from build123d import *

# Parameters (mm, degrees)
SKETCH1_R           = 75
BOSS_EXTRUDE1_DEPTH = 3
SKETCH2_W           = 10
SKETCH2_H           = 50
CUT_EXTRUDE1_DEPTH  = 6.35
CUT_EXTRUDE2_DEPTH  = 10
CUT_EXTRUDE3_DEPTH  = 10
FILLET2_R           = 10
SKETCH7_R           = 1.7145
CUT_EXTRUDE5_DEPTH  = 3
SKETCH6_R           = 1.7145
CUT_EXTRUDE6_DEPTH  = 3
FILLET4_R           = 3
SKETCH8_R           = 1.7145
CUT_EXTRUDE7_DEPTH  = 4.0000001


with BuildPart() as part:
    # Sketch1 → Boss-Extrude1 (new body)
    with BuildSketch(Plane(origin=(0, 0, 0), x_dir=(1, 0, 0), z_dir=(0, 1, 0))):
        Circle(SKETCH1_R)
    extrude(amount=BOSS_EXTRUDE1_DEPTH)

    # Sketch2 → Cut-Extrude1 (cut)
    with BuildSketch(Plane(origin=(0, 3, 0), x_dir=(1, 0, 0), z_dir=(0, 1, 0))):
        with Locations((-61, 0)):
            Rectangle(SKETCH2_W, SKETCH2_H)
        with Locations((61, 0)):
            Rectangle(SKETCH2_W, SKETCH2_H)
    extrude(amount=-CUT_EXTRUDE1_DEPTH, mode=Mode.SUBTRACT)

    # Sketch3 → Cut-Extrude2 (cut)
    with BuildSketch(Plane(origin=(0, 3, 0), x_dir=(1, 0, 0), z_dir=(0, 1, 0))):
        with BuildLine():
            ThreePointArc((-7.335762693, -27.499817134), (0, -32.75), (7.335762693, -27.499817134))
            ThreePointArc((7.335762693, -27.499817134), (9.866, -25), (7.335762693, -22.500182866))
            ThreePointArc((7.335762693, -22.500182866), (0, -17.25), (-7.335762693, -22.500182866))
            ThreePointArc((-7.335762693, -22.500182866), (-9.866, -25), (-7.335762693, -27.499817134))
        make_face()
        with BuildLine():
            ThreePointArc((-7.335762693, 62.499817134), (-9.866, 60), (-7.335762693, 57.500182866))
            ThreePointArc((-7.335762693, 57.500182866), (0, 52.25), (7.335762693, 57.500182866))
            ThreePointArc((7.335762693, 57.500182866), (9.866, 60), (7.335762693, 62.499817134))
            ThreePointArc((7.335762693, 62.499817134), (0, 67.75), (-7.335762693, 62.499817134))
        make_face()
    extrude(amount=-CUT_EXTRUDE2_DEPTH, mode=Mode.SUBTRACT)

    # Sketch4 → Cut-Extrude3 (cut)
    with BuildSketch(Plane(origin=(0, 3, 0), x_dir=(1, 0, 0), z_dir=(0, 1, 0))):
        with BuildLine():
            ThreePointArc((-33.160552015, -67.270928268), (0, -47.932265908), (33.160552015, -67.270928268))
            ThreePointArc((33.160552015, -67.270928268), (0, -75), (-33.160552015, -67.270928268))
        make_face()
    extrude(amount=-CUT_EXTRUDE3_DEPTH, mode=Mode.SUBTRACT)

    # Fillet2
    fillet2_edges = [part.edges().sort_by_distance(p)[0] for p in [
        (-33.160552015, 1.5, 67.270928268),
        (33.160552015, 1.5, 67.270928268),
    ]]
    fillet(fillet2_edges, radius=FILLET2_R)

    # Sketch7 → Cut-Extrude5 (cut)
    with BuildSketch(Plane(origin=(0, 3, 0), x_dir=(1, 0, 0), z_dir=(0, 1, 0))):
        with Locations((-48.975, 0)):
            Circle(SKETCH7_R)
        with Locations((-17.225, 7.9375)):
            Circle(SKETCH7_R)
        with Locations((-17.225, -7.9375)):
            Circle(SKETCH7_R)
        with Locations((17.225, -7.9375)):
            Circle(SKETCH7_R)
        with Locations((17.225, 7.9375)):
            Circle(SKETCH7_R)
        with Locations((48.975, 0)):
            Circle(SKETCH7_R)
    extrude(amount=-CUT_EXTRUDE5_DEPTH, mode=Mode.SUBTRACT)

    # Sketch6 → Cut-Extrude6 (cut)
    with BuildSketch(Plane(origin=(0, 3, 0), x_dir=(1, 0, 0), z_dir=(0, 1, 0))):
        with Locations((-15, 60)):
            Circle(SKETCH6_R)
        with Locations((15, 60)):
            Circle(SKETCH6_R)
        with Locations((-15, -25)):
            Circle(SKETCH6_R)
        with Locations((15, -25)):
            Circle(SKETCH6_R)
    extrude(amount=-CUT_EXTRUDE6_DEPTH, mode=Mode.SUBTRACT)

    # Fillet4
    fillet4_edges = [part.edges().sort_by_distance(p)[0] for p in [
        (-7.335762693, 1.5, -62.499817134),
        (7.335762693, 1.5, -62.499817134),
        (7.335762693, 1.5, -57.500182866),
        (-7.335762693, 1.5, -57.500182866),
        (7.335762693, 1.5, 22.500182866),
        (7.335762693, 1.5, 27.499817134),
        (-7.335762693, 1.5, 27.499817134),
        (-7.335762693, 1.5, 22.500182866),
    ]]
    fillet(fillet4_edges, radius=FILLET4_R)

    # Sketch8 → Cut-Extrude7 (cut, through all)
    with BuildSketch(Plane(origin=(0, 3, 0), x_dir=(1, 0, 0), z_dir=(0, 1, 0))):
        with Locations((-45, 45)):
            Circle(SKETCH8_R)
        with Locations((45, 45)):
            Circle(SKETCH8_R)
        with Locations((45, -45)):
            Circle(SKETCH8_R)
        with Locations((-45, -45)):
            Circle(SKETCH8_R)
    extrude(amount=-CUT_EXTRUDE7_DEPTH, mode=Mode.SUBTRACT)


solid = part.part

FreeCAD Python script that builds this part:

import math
import FreeCAD as App
import Part
import Sketcher


def edges_at(feature, points):
    """Names of the edges that pass closest to the given points."""
    edges = feature.Shape.Edges
    near = lambda p: min(range(len(edges)), key=lambda i: edges[i].distToShape(Part.Vertex(*p))[0])
    return sorted({f"Edge{near(p) + 1}" for p in points})

doc = App.newDocument("Part")
params = doc.addObject("Spreadsheet::Sheet", "Params")
for row, (alias, value) in enumerate([
    ("sketch1_diameter", "150 mm"),
    ("pad1_length", "3 mm"),
    ("sketch2_width", "10 mm"),
    ("sketch2_height", "50 mm"),
    ("pocket1_length", "6.35 mm"),
    ("sketch3_radius", "2.5 mm"),
    ("sketch3_radius2", "7.75 mm"),
    ("pocket2_length", "10 mm"),
    ("sketch4_radius", "75 mm"),
    ("sketch4_radius2", "38.1 mm"),
    ("pocket3_length", "10 mm"),
    ("fillet_radius", "10 mm"),
    ("pocket4_length", "3 mm"),
    ("pocket5_length", "3 mm"),
    ("fillet2_radius", "3 mm"),
], start=1):
    params.set(f"A{row}", alias)
    params.set(f"B{row}", "=" + value)
    params.setAlias(f"B{row}", alias)

body = doc.addObject("PartDesign::Body", "Body")

# Sketch on XZ plane
sketch1 = doc.addObject("Sketcher::SketchObject", "Sketch")
body.addObject(sketch1)
sketch1.AttachmentSupport = (doc.XZ_Plane, [""])
sketch1.MapMode = "FlatFace"
sketch1.addGeometry(Part.Circle(App.Vector(0, 0, 0), App.Vector(0, 0, 1), 75), False)
sketch1.addConstraint(Sketcher.Constraint("Coincident", 0, 3, -1, 1))
sketch1.addConstraint(Sketcher.Constraint("Diameter", 0, 150.0))
sketch1.setExpression("Constraints[1]", "Params.sketch1_diameter")
pad1 = doc.addObject("PartDesign::Pad", "Pad")
body.addObject(pad1)
pad1.Profile = sketch1
pad1.setExpression("Length", "Params.pad1_length")
pad1.Reversed = True

# Sketch on XZ plane
sketch2 = doc.addObject("Sketcher::SketchObject", "Sketch001")
body.addObject(sketch2)
sketch2.AttachmentSupport = (doc.XZ_Plane, [""])
sketch2.MapMode = "FlatFace"
sketch2.AttachmentOffset = App.Placement(App.Vector(0, 0, -3), App.Rotation())
sketch2.addGeometry(Part.LineSegment(App.Vector(-66, -25, 0), App.Vector(-66, 25, 0)), False)
sketch2.addGeometry(Part.LineSegment(App.Vector(-66, 25, 0), App.Vector(-56, 25, 0)), False)
sketch2.addGeometry(Part.LineSegment(App.Vector(-56, 25, 0), App.Vector(-56, -25, 0)), False)
sketch2.addGeometry(Part.LineSegment(App.Vector(-56, -25, 0), App.Vector(-66, -25, 0)), False)
sketch2.addGeometry(Part.LineSegment(App.Vector(56, -25, 0), App.Vector(56, 25, 0)), False)
sketch2.addGeometry(Part.LineSegment(App.Vector(56, 25, 0), App.Vector(66, 25, 0)), False)
sketch2.addGeometry(Part.LineSegment(App.Vector(66, 25, 0), App.Vector(66, -25, 0)), False)
sketch2.addGeometry(Part.LineSegment(App.Vector(66, -25, 0), App.Vector(56, -25, 0)), False)
sketch2.addConstraint(Sketcher.Constraint("Coincident", 0, 2, 1, 1))
sketch2.addConstraint(Sketcher.Constraint("Coincident", 1, 2, 2, 1))
sketch2.addConstraint(Sketcher.Constraint("Coincident", 2, 2, 3, 1))
sketch2.addConstraint(Sketcher.Constraint("Coincident", 3, 2, 0, 1))
sketch2.addConstraint(Sketcher.Constraint("Coincident", 4, 2, 5, 1))
sketch2.addConstraint(Sketcher.Constraint("Coincident", 5, 2, 6, 1))
sketch2.addConstraint(Sketcher.Constraint("Coincident", 6, 2, 7, 1))
sketch2.addConstraint(Sketcher.Constraint("Coincident", 7, 2, 4, 1))
sketch2.addConstraint(Sketcher.Constraint("Vertical", 0))
sketch2.addConstraint(Sketcher.Constraint("Horizontal", 1))
sketch2.addConstraint(Sketcher.Constraint("Vertical", 2))
sketch2.addConstraint(Sketcher.Constraint("Horizontal", 3))
sketch2.addConstraint(Sketcher.Constraint("Vertical", 4))
sketch2.addConstraint(Sketcher.Constraint("Horizontal", 5))
sketch2.addConstraint(Sketcher.Constraint("Vertical", 6))
sketch2.addConstraint(Sketcher.Constraint("Horizontal", 7))
sketch2.addConstraint(Sketcher.Constraint("Symmetric", 2, 2, 4, 2, -1, 1))
sketch2.addConstraint(Sketcher.Constraint("Symmetric", 0, 2, 6, 2, -1, 1))
sketch2.addConstraint(Sketcher.Constraint("Horizontal", 1, 2, 4, 2))
sketch2.addConstraint(Sketcher.Constraint("DistanceX", 1, 1, 1, 2, 10.0))
sketch2.addConstraint(Sketcher.Constraint("DistanceY", 0, 1, 0, 2, 50.0))
sketch2.addConstraint(Sketcher.Constraint("DistanceX", 0, 2, -1, 1, 66.0))
sketch2.setExpression("Constraints[19]", "Params.sketch2_width")
sketch2.setExpression("Constraints[20]", "Params.sketch2_height")
pocket1 = doc.addObject("PartDesign::Pocket", "Pocket")
body.addObject(pocket1)
pocket1.Profile = sketch2
pocket1.setExpression("Length", "Params.pocket1_length")
pocket1.Reversed = True

# Sketch on XZ plane
sketch3 = doc.addObject("Sketcher::SketchObject", "Sketch002")
body.addObject(sketch3)
sketch3.AttachmentSupport = (doc.XZ_Plane, [""])
sketch3.MapMode = "FlatFace"
sketch3.AttachmentOffset = App.Placement(App.Vector(0, 0, -3), App.Rotation())
sketch3.addGeometry(Part.ArcOfCircle(Part.Circle(App.Vector(0, 25, 0), App.Vector(0, 0, 1), 7.7), math.radians(19), math.radians(161)), False)
sketch3.addGeometry(Part.ArcOfCircle(Part.Circle(App.Vector(7.4, 25, 0), App.Vector(0, 0, 1), 2.5), math.radians(-91), math.radians(91)), False)
sketch3.addGeometry(Part.ArcOfCircle(Part.Circle(App.Vector(0, 25, 0), App.Vector(0, 0, 1), 7.7), math.radians(-161), math.radians(-19)), False)
sketch3.addGeometry(Part.ArcOfCircle(Part.Circle(App.Vector(-7.4, 25, 0), App.Vector(0, 0, 1), 2.5), math.radians(89), math.radians(271)), False)
sketch3.addGeometry(Part.ArcOfCircle(Part.Circle(App.Vector(-7.4, -60, 0), App.Vector(0, 0, 1), 2.5), math.radians(89), math.radians(271)), False)
sketch3.addGeometry(Part.ArcOfCircle(Part.Circle(App.Vector(0, -60, 0), App.Vector(0, 0, 1), 7.7), math.radians(19), math.radians(161)), False)
sketch3.addGeometry(Part.ArcOfCircle(Part.Circle(App.Vector(7.4, -60, 0), App.Vector(0, 0, 1), 2.5), math.radians(-91), math.radians(91)), False)
sketch3.addGeometry(Part.ArcOfCircle(Part.Circle(App.Vector(0, -60, 0), App.Vector(0, 0, 1), 7.7), math.radians(-161), math.radians(-19)), False)
sketch3.addConstraint(Sketcher.Constraint("Coincident", 0, 1, 1, 2))
sketch3.addConstraint(Sketcher.Constraint("Coincident", 1, 1, 2, 2))
sketch3.addConstraint(Sketcher.Constraint("Coincident", 2, 1, 3, 2))
sketch3.addConstraint(Sketcher.Constraint("Coincident", 3, 1, 0, 2))
sketch3.addConstraint(Sketcher.Constraint("Coincident", 4, 1, 5, 2))
sketch3.addConstraint(Sketcher.Constraint("Coincident", 5, 1, 6, 2))
sketch3.addConstraint(Sketcher.Constraint("Coincident", 6, 1, 7, 2))
sketch3.addConstraint(Sketcher.Constraint("Coincident", 7, 1, 4, 2))
sketch3.addConstraint(Sketcher.Constraint("Coincident", 2, 3, 0, 3))
sketch3.addConstraint(Sketcher.Constraint("Coincident", 7, 3, 5, 3))
sketch3.addConstraint(Sketcher.Constraint("Equal", 0, 2))
sketch3.addConstraint(Sketcher.Constraint("Equal", 1, 3))
sketch3.addConstraint(Sketcher.Constraint("Equal", 3, 4))
sketch3.addConstraint(Sketcher.Constraint("Equal", 2, 5))
sketch3.addConstraint(Sketcher.Constraint("Equal", 4, 6))
sketch3.addConstraint(Sketcher.Constraint("Equal", 5, 7))
sketch3.addConstraint(Sketcher.Constraint("Symmetric", 1, 3, 3, 3, -2))
sketch3.addConstraint(Sketcher.Constraint("Symmetric", 4, 3, 6, 3, -2))
sketch3.addConstraint(Sketcher.Constraint("PointOnObject", 0, 3, -2))
sketch3.addConstraint(Sketcher.Constraint("PointOnObject", 5, 3, -2))
sketch3.addConstraint(Sketcher.Constraint("Horizontal", 0, 3, 1, 3))
sketch3.addConstraint(Sketcher.Constraint("Horizontal", 4, 3, 5, 3))
sketch3.addConstraint(Sketcher.Constraint("Vertical", 3, 3, 4, 3))
sketch3.addConstraint(Sketcher.Constraint("Radius", 1, 2.5))
sketch3.addConstraint(Sketcher.Constraint("Radius", 0, 7.75))
sketch3.addConstraint(Sketcher.Constraint("DistanceY", -1, 1, 0, 3, 25.0))
sketch3.addConstraint(Sketcher.Constraint("DistanceY", 4, 3, -1, 1, 60.0))
sketch3.addConstraint(Sketcher.Constraint("DistanceX", -1, 1, 1, 3, 7.366))
sketch3.setExpression("Constraints[23]", "Params.sketch3_radius")
sketch3.setExpression("Constraints[24]", "Params.sketch3_radius2")
pocket2 = doc.addObject("PartDesign::Pocket", "Pocket001")
body.addObject(pocket2)
pocket2.Profile = sketch3
pocket2.setExpression("Length", "Params.pocket2_length")
pocket2.Reversed = True

# Sketch on XZ plane
sketch4 = doc.addObject("Sketcher::SketchObject", "Sketch003")
body.addObject(sketch4)
sketch4.AttachmentSupport = (doc.XZ_Plane, [""])
sketch4.MapMode = "FlatFace"
sketch4.AttachmentOffset = App.Placement(App.Vector(0, 0, -3), App.Rotation())
sketch4.addGeometry(Part.ArcOfCircle(Part.Circle(App.Vector(0, 86, 0), App.Vector(0, 0, 1), 38), math.radians(-150), math.radians(-30)), False)
sketch4.addGeometry(Part.ArcOfCircle(Part.Circle(App.Vector(0, 0, 0), App.Vector(0, 0, 1), 75), math.radians(64), math.radians(116)), False)
sketch4.addConstraint(Sketcher.Constraint("Coincident", 0, 1, 1, 2))
sketch4.addConstraint(Sketcher.Constraint("Coincident", 1, 1, 0, 2))
sketch4.addConstraint(Sketcher.Constraint("Coincident", 1, 3, -1, 1))
sketch4.addConstraint(Sketcher.Constraint("PointOnObject", 0, 3, -2))
sketch4.addConstraint(Sketcher.Constraint("Radius", 1, 75.0))
sketch4.addConstraint(Sketcher.Constraint("Radius", 0, 38.1))
sketch4.addConstraint(Sketcher.Constraint("DistanceY", -1, 1, 0, 1, 67.270928))
sketch4.setExpression("Constraints[4]", "Params.sketch4_radius")
sketch4.setExpression("Constraints[5]", "Params.sketch4_radius2")
pocket3 = doc.addObject("PartDesign::Pocket", "Pocket002")
body.addObject(pocket3)
pocket3.Profile = sketch4
pocket3.setExpression("Length", "Params.pocket3_length")
pocket3.Reversed = True
doc.recompute()

fillet = doc.addObject("PartDesign::Fillet", "Fillet")
body.addObject(fillet)
fillet.Base = (pocket3, edges_at(pocket3, [(-33.161, 1.5, 67.271), (33.161, 1.5, 67.271)]))
fillet.setExpression("Radius", "Params.fillet_radius")

# Sketch on XZ plane
sketch5 = doc.addObject("Sketcher::SketchObject", "Sketch004")
body.addObject(sketch5)
sketch5.AttachmentSupport = (doc.XZ_Plane, [""])
sketch5.MapMode = "FlatFace"
sketch5.AttachmentOffset = App.Placement(App.Vector(0, 0, -3), App.Rotation())
sketch5.addGeometry(Part.Circle(App.Vector(-49, 0, 0), App.Vector(0, 0, 1), 1.7), False)
sketch5.addGeometry(Part.Circle(App.Vector(-17.2, -7.9, 0), App.Vector(0, 0, 1), 1.7), False)
sketch5.addGeometry(Part.Circle(App.Vector(-17.2, 7.9, 0), App.Vector(0, 0, 1), 1.7), False)
sketch5.addGeometry(Part.Circle(App.Vector(17.2, 7.9, 0), App.Vector(0, 0, 1), 1.7), False)
sketch5.addGeometry(Part.Circle(App.Vector(17.2, -7.9, 0), App.Vector(0, 0, 1), 1.7), False)
sketch5.addGeometry(Part.Circle(App.Vector(49, 0, 0), App.Vector(0, 0, 1), 1.7), False)
sketch5.addConstraint(Sketcher.Constraint("Equal", 0, 1))
sketch5.addConstraint(Sketcher.Constraint("Equal", 1, 2))
sketch5.addConstraint(Sketcher.Constraint("Equal", 2, 3))
sketch5.addConstraint(Sketcher.Constraint("Equal", 3, 4))
sketch5.addConstraint(Sketcher.Constraint("Equal", 4, 5))
sketch5.addConstraint(Sketcher.Constraint("Symmetric", 1, 3, 3, 3, -1, 1))
sketch5.addConstraint(Sketcher.Constraint("Symmetric", 2, 3, 4, 3, -1, 1))
sketch5.addConstraint(Sketcher.Constraint("Symmetric", 0, 3, 5, 3, -1, 1))
sketch5.addConstraint(Sketcher.Constraint("Symmetric", 2, 3, 3, 3, -2))
sketch5.addConstraint(Sketcher.Constraint("PointOnObject", 0, 3, -1))
sketch5.addConstraint(Sketcher.Constraint("Diameter", 0, 3.429))
sketch5.addConstraint(Sketcher.Constraint("DistanceX", 0, 3, 3, 3, 66.2))
sketch5.addConstraint(Sketcher.Constraint("DistanceX", 0, 3, 1, 3, 31.75))
sketch5.addConstraint(Sketcher.Constraint("DistanceY", 1, 3, 2, 3, 15.875))
pocket4 = doc.addObject("PartDesign::Pocket", "Pocket003")
body.addObject(pocket4)
pocket4.Profile = sketch5
pocket4.setExpression("Length", "Params.pocket4_length")
pocket4.Reversed = True

# Sketch on XZ plane
sketch6 = doc.addObject("Sketcher::SketchObject", "Sketch005")
body.addObject(sketch6)
sketch6.AttachmentSupport = (doc.XZ_Plane, [""])
sketch6.MapMode = "FlatFace"
sketch6.AttachmentOffset = App.Placement(App.Vector(0, 0, -3), App.Rotation())
sketch6.addGeometry(Part.Circle(App.Vector(-15, -60, 0), App.Vector(0, 0, 1), 1.7), False)
sketch6.addGeometry(Part.Circle(App.Vector(15, -60, 0), App.Vector(0, 0, 1), 1.7), False)
sketch6.addGeometry(Part.Circle(App.Vector(-15, 25, 0), App.Vector(0, 0, 1), 1.7), False)
sketch6.addGeometry(Part.Circle(App.Vector(15, 25, 0), App.Vector(0, 0, 1), 1.7), False)
sketch6.addConstraint(Sketcher.Constraint("Equal", 0, 1))
sketch6.addConstraint(Sketcher.Constraint("Equal", 1, 2))
sketch6.addConstraint(Sketcher.Constraint("Equal", 2, 3))
sketch6.addConstraint(Sketcher.Constraint("Symmetric", 0, 3, 1, 3, -2))
sketch6.addConstraint(Sketcher.Constraint("Symmetric", 2, 3, 3, 3, -2))
sketch6.addConstraint(Sketcher.Constraint("Vertical", 0, 3, 2, 3))
sketch6.addConstraint(Sketcher.Constraint("Diameter", 0, 3.429))
sketch6.addConstraint(Sketcher.Constraint("DistanceX", 0, 3, -1, 1, 15.0))
sketch6.addConstraint(Sketcher.Constraint("DistanceY", 0, 3, -1, 1, 60.0))
sketch6.addConstraint(Sketcher.Constraint("DistanceY", -1, 1, 2, 3, 25.0))
pocket5 = doc.addObject("PartDesign::Pocket", "Pocket004")
body.addObject(pocket5)
pocket5.Profile = sketch6
pocket5.setExpression("Length", "Params.pocket5_length")
pocket5.Reversed = True
doc.recompute()

fillet2 = doc.addObject("PartDesign::Fillet", "Fillet001")
body.addObject(fillet2)
fillet2.Base = (pocket5, edges_at(pocket5, [
    (-7.336, 1.5, -62.5),
    (7.336, 1.5, -62.5),
    (7.336, 1.5, -57.5),
    (-7.336, 1.5, -57.5),
    (7.336, 1.5, 22.5),
    (7.336, 1.5, 27.5),
    (-7.336, 1.5, 27.5),
    (-7.336, 1.5, 22.5),
]))
fillet2.setExpression("Radius", "Params.fillet2_radius")

# Sketch on XZ plane
sketch7 = doc.addObject("Sketcher::SketchObject", "Sketch006")
body.addObject(sketch7)
sketch7.AttachmentSupport = (doc.XZ_Plane, [""])
sketch7.MapMode = "FlatFace"
sketch7.AttachmentOffset = App.Placement(App.Vector(0, 0, -3), App.Rotation())
sketch7.addGeometry(Part.Circle(App.Vector(-45, -45, 0), App.Vector(0, 0, 1), 1.7), False)
sketch7.addGeometry(Part.Circle(App.Vector(45, -45, 0), App.Vector(0, 0, 1), 1.7), False)
sketch7.addGeometry(Part.Circle(App.Vector(45, 45, 0), App.Vector(0, 0, 1), 1.7), False)
sketch7.addGeometry(Part.Circle(App.Vector(-45, 45, 0), App.Vector(0, 0, 1), 1.7), False)
sketch7.addConstraint(Sketcher.Constraint("Equal", 0, 1))
sketch7.addConstraint(Sketcher.Constraint("Equal", 1, 2))
sketch7.addConstraint(Sketcher.Constraint("Equal", 2, 3))
sketch7.addConstraint(Sketcher.Constraint("Symmetric", 0, 3, 2, 3, -1, 1))
sketch7.addConstraint(Sketcher.Constraint("Symmetric", 1, 3, 3, 3, -1, 1))
sketch7.addConstraint(Sketcher.Constraint("Symmetric", 0, 3, 1, 3, -2))
sketch7.addConstraint(Sketcher.Constraint("Diameter", 0, 3.429))
sketch7.addConstraint(Sketcher.Constraint("DistanceX", 0, 3, -1, 1, 45.0))
sketch7.addConstraint(Sketcher.Constraint("DistanceY", 0, 3, -1, 1, 45.0))
pocket6 = doc.addObject("PartDesign::Pocket", "Pocket005")
body.addObject(pocket6)
pocket6.Profile = sketch7
pocket6.Type = "ThroughAll"
pocket6.Reversed = True

doc.recompute()
